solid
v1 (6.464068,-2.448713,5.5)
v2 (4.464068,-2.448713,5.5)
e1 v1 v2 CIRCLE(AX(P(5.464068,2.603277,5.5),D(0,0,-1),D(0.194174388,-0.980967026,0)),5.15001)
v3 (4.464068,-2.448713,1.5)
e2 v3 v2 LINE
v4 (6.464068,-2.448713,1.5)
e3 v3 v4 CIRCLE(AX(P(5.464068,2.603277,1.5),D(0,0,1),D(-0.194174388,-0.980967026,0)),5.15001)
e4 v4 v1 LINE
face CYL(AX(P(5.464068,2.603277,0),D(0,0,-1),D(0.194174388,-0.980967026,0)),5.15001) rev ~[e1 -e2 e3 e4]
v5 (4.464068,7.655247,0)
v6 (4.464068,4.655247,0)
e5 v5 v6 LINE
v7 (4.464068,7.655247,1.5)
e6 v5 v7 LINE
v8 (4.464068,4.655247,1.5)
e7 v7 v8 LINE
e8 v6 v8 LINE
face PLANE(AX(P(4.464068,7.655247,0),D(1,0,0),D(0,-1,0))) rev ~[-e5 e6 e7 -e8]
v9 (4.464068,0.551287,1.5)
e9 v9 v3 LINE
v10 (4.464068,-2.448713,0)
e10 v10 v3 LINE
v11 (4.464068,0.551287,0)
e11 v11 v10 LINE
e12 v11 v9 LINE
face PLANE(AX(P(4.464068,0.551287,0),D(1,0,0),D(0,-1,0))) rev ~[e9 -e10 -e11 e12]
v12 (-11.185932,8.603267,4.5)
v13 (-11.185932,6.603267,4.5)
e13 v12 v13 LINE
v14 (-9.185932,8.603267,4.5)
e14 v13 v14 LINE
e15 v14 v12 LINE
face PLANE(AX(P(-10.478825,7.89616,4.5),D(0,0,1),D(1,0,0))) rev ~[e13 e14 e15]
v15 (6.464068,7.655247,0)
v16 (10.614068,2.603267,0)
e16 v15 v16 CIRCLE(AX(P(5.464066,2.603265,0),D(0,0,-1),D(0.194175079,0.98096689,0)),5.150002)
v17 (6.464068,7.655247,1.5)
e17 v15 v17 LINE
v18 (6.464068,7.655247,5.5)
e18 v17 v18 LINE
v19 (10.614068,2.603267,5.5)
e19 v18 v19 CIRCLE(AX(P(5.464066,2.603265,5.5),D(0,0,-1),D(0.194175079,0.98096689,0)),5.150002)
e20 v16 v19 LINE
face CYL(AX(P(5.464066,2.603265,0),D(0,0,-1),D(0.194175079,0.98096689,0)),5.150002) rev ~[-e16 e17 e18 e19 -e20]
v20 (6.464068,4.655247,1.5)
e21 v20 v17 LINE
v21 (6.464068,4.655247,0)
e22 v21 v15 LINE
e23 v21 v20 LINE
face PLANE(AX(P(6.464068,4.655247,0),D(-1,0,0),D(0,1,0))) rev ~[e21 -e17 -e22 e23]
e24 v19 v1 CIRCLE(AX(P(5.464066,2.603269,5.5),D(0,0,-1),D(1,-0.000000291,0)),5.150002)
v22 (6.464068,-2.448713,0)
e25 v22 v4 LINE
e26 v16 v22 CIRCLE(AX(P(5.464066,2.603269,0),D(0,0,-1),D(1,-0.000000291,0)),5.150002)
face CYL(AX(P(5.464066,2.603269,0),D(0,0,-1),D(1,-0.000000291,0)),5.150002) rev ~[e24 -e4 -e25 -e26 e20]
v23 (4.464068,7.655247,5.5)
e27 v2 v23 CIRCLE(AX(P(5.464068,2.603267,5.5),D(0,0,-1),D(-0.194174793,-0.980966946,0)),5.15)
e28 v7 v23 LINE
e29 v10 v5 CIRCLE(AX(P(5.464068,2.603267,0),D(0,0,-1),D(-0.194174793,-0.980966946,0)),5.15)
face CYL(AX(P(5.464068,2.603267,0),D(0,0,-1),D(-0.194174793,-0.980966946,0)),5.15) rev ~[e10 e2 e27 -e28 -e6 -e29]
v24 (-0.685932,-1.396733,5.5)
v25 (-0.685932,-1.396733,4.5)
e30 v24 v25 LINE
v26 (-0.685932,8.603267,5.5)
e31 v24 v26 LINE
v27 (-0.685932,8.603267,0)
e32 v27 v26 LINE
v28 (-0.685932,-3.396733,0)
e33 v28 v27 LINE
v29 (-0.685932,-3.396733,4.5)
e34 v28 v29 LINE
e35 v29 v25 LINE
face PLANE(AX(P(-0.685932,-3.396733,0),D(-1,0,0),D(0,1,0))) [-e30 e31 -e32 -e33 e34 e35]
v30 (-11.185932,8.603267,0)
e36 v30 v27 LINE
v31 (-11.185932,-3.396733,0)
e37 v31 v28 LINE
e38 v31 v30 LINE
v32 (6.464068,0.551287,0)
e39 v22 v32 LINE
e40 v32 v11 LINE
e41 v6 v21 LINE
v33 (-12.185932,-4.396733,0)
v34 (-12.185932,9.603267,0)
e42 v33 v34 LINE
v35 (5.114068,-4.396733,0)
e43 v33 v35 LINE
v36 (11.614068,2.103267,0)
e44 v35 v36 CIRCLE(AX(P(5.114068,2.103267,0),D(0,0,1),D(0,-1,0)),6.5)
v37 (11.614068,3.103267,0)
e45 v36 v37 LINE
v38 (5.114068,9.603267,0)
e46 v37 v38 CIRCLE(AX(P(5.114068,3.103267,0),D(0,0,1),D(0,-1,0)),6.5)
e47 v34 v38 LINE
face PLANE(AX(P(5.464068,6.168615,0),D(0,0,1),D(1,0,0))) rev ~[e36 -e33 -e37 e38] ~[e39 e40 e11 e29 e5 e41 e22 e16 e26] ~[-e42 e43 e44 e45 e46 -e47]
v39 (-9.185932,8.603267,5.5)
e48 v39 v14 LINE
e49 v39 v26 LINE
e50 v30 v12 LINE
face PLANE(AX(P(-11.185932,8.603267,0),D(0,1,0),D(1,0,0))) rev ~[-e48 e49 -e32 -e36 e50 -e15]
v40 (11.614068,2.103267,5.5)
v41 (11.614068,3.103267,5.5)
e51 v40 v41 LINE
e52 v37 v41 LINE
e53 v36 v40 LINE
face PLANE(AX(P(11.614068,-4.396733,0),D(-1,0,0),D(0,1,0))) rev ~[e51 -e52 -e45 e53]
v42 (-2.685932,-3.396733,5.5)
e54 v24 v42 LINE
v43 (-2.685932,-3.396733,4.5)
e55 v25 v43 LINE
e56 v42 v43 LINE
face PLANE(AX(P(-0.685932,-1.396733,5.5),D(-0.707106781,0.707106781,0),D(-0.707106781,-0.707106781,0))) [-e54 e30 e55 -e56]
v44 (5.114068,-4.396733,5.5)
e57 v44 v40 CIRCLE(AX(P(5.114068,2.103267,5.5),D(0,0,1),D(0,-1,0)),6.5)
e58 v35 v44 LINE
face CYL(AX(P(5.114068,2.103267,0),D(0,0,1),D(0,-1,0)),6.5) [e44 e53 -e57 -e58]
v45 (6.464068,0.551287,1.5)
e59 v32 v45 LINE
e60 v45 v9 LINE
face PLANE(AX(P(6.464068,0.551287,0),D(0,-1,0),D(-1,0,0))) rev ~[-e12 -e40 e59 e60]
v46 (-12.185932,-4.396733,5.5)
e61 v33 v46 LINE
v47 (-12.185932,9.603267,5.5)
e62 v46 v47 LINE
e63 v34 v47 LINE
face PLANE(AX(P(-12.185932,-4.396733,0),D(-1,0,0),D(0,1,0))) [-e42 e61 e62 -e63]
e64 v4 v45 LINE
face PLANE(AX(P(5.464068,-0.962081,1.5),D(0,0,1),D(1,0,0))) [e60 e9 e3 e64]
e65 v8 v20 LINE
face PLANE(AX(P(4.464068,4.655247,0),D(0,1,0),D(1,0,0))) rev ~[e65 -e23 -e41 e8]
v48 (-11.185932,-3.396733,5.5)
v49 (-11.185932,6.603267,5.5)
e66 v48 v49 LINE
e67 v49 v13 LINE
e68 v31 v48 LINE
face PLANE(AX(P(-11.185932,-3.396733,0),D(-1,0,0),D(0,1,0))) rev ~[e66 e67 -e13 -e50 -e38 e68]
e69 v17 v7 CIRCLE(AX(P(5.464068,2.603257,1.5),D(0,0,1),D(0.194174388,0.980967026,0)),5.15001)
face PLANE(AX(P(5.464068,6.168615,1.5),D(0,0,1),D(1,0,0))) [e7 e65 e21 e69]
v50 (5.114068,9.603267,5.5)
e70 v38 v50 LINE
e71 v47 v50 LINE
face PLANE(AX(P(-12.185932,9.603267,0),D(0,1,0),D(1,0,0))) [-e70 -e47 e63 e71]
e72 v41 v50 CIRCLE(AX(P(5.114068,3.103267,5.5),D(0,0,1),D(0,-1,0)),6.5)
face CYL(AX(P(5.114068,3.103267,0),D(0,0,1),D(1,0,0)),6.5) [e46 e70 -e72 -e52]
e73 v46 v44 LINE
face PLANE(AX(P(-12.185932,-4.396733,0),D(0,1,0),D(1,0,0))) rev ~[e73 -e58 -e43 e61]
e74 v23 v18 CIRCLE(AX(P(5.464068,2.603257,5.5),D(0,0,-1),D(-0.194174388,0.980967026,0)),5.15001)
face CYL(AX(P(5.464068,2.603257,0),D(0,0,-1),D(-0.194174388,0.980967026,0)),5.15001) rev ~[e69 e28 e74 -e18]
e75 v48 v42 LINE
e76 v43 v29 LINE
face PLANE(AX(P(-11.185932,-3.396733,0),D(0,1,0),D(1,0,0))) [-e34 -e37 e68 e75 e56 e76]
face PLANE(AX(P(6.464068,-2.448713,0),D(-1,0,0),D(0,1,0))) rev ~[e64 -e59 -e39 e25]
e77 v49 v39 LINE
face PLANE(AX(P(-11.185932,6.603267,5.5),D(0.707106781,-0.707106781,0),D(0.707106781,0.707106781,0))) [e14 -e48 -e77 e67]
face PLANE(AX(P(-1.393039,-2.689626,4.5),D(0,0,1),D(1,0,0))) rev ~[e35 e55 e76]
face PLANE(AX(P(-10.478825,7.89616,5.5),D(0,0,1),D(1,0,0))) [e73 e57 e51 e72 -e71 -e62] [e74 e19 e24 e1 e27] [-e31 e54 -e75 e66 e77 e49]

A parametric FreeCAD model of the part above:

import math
import FreeCAD as App
import Part
import Sketcher

V = App.Vector


def edges_at(feature, points):
    """Names of the edges that pass closest to the given points."""
    edges = feature.Shape.Edges
    near = lambda p: min(range(len(edges)), key=lambda i: edges[i].distToShape(Part.Vertex(*p))[0])
    return sorted({f"Edge{near(p) + 1}" for p in points})


def add_polygon(sketch, points):
    """Adds a closed chain of lines whose ends are joined by coincident constraints."""
    first, n = sketch.GeometryCount, len(points)
    for a, b in zip(points, points[1:] + points[:1]):
        sketch.addGeometry(Part.LineSegment(App.Vector(*a, 0), App.Vector(*b, 0)), False)
    for i in range(n):
        sketch.addConstraint(Sketcher.Constraint("Coincident", first + i, 2, first + (i + 1) % n, 1))

doc = App.newDocument("Part")
body = doc.addObject("PartDesign::Body", "Body")

# Sketch on XY plane
sketch1 = doc.addObject("Sketcher::SketchObject", "Sketch")
body.addObject(sketch1)
sketch1.AttachmentSupport = (doc.XY_Plane, [""])
sketch1.MapMode = "FlatFace"
add_polygon(sketch1, [(-12.2, 9.6), (-12.2, -4.4), (11.6, -4.4), (11.6, 9.6)])  # lines 0-3
add_polygon(sketch1, [(-0.7, -3.4), (-11.2, -3.4), (-11.2, 8.6), (-0.7, 8.6)])  # lines 4-7
sketch1.addGeometry(Part.ArcOfCircle(Part.Circle(V(5.5, 2.6, 0), V(0, 0, 1), 5.2), math.radians(101), math.radians(259)), False)  # 8
sketch1.addGeometry(Part.ArcOfCircle(Part.Circle(V(5.5, 2.6, 0), V(0, 0, 1), 5.2), math.radians(79), math.radians(101)), False)  # 9
sketch1.addGeometry(Part.ArcOfCircle(Part.Circle(V(5.5, 2.6, 0), V(0, 0, 1), 5.2), math.radians(0), math.radians(79)), False)  # 10
sketch1.addGeometry(Part.ArcOfCircle(Part.Circle(V(5.5, 2.6, 0), V(0, 0, 1), 5.2), math.radians(-79), math.radians(0)), False)  # 11
sketch1.addGeometry(Part.ArcOfCircle(Part.Circle(V(5.5, 2.6, 0), V(0, 0, 1), 5.2), math.radians(-101), math.radians(-79)), False)  # 12
sketch1.addConstraint([
    Sketcher.Constraint("Tangent", 8, 1, 9, 2),
    Sketcher.Constraint("Tangent", 9, 1, 10, 2),
    Sketcher.Constraint("Tangent", 10, 1, 11, 2),
    Sketcher.Constraint("Tangent", 11, 1, 12, 2),
    Sketcher.Constraint("Tangent", 12, 1, 8, 2),
    Sketcher.Constraint("Vertical", 0),
    Sketcher.Constraint("Horizontal", 1),
    Sketcher.Constraint("Vertical", 2),
    Sketcher.Constraint("Horizontal", 3),
    Sketcher.Constraint("Horizontal", 4),
    Sketcher.Constraint("Vertical", 5),
    Sketcher.Constraint("Horizontal", 6),
    Sketcher.Constraint("Vertical", 7),
    Sketcher.Constraint("Coincident", 10, 3, 8, 3),
    Sketcher.Constraint("Horizontal", 8, 1, 9, 1),
    Sketcher.Constraint("Horizontal", 11, 3, 10, 1),
    Sketcher.Constraint("Horizontal", 11, 1, 12, 1),
    Sketcher.Constraint("Vertical", 9, 1, 11, 1),
    Sketcher.Constraint("DistanceY", 0, 2, 0, 1, 14.0),
    Sketcher.Constraint("DistanceY", 5, 1, 5, 2, 12.0),
    Sketcher.Constraint("Radius", 8, 5.15),
    Sketcher.Constraint("DistanceX", 1, 1, 1, 2, 23.8),
    Sketcher.Constraint("DistanceX", 4, 2, 4, 1, 10.5),
    Sketcher.Constraint("DistanceY", 0, 2, 10, 3, 6.999998),
    Sketcher.Constraint("DistanceX", 0, 2, 4, 2, 1.0),
    Sketcher.Constraint("DistanceY", 0, 2, 4, 2, 1.0),
    Sketcher.Constraint("DistanceX", 8, 1, 12, 3, 1.0),
    Sketcher.Constraint("DistanceX", 0, 2, 9, 3, 17.65),
    Sketcher.Constraint("DistanceX", -1, 1, 8, 3, 5.464068),
    Sketcher.Constraint("DistanceY", -1, 1, 11, 3, 2.603269),
])
pad1 = doc.addObject("PartDesign::Pad", "Pad")
body.addObject(pad1)
pad1.Profile = sketch1
pad1.Length = 5.5

# Sketch on XY plane
sketch2 = doc.addObject("Sketcher::SketchObject", "Sketch001")
body.addObject(sketch2)
sketch2.AttachmentSupport = (doc.XY_Plane, [""])
sketch2.MapMode = "FlatFace"
sketch2.addGeometry([
    Part.LineSegment(V(4.5, 4.7, 0), V(6.5, 4.7, 0)),  # 0
    Part.LineSegment(V(6.5, 4.7, 0), V(6.5, 7.7, 0)),  # 1
    Part.ArcOfCircle(Part.Circle(V(5.5, 2.6, 0), V(0, 0, 1), 5.2), math.radians(79), math.radians(101)),  # 2
    Part.LineSegment(V(4.5, 7.7, 0), V(4.5, 4.7, 0)),  # 3
    Part.ArcOfCircle(Part.Circle(V(5.5, 2.6, 0), V(0, 0, 1), 5.2), math.radians(-101), math.radians(-79)),  # 4
    Part.LineSegment(V(6.5, -2.4, 0), V(6.5, 0.6, 0)),  # 5
    Part.LineSegment(V(6.5, 0.6, 0), V(4.5, 0.6, 0)),  # 6
    Part.LineSegment(V(4.5, 0.6, 0), V(4.5, -2.4, 0)),  # 7
], False)
sketch2.addConstraint([
    Sketcher.Constraint("Coincident", 0, 2, 1, 1),
    Sketcher.Constraint("Coincident", 1, 2, 2, 1),
    Sketcher.Constraint("Coincident", 2, 2, 3, 1),
    Sketcher.Constraint("Coincident", 3, 2, 0, 1),
    Sketcher.Constraint("Coincident", 4, 2, 5, 1),
    Sketcher.Constraint("Coincident", 5, 2, 6, 1),
    Sketcher.Constraint("Coincident", 6, 2, 7, 1),
    Sketcher.Constraint("Coincident", 7, 2, 4, 1),
    Sketcher.Constraint("Horizontal", 0),
    Sketcher.Constraint("Vertical", 1),
    Sketcher.Constraint("Vertical", 3),
    Sketcher.Constraint("Vertical", 5),
    Sketcher.Constraint("Horizontal", 6),
    Sketcher.Constraint("Vertical", 7),
    Sketcher.Constraint("Equal", 2, 4),
    Sketcher.Constraint("Horizontal", 1, 2, 2, 2),
    Sketcher.Constraint("Horizontal", 4, 2, 7, 2),
    Sketcher.Constraint("Vertical", 2, 3, 4, 3),
    Sketcher.Constraint("Vertical", 1, 2, 4, 2),
    Sketcher.Constraint("Equal", 3, 5),
    Sketcher.Constraint("DistanceX", 0, 1, 0, 2, 2.0),
    Sketcher.Constraint("DistanceY", 1, 1, 1, 2, 3.0),
    Sketcher.Constraint("Radius", 2, 5.15001),
    Sketcher.Constraint("DistanceX", -1, 1, 4, 2, 6.464068),
    Sketcher.Constraint("DistanceY", 4, 3, 0, 2, 2.05197),
    Sketcher.Constraint("DistanceY", -1, 1, 2, 3, 2.603257),
])
pad2 = doc.addObject("PartDesign::Pad", "Pad001")
body.addObject(pad2)
pad2.Profile = sketch2
pad2.Length = 1.5

# Sketch on XY plane
sketch3 = doc.addObject("Sketcher::SketchObject", "Sketch002")
body.addObject(sketch3)
sketch3.AttachmentSupport = (doc.XY_Plane, [""])
sketch3.MapMode = "FlatFace"
sketch3.AttachmentOffset = App.Placement(V(0, 0, 5.5), App.Rotation())
add_polygon(sketch3, [(-9.2, 8.6), (-11.2, 8.6), (-11.2, 6.6)])  # lines 0-2
add_polygon(sketch3, [(-0.7, -3.4), (-0.7, -1.4), (-2.7, -3.4)])  # lines 3-5
sketch3.addConstraint([
    Sketcher.Constraint("Horizontal", 0),
    Sketcher.Constraint("Vertical", 1),
    Sketcher.Constraint("Vertical", 3),
    Sketcher.Constraint("Horizontal", 5),
    Sketcher.Constraint("Parallel", 2, 4),
    Sketcher.Constraint("Equal", 0, 5),
    Sketcher.Constraint("Equal", 5, 1),
    Sketcher.Constraint("DistanceX", 0, 2, 0, 1, 2.0),
    Sketcher.Constraint("DistanceY", 3, 2, 2, 2, 10.0),
    Sketcher.Constraint("DistanceX", 2, 2, 3, 2, 8.5),
    Sketcher.Constraint("DistanceX", 0, 2, -1, 1, 11.185932),
    Sketcher.Constraint("DistanceY", -1, 1, 0, 2, 8.603267),
])
pad3 = doc.addObject("PartDesign::Pad", "Pad002")
body.addObject(pad3)
pad3.Profile = sketch3
pad3.Length = 1
pad3.Reversed = True
doc.recompute()

fillet = doc.addObject("PartDesign::Fillet", "Fillet")
body.addObject(fillet)
fillet.Base = (pad3, edges_at(pad3, [(11.614, 9.603, 2.75), (11.614, -4.397, 2.75)]))
fillet.Radius = 6.5

doc.recompute()
